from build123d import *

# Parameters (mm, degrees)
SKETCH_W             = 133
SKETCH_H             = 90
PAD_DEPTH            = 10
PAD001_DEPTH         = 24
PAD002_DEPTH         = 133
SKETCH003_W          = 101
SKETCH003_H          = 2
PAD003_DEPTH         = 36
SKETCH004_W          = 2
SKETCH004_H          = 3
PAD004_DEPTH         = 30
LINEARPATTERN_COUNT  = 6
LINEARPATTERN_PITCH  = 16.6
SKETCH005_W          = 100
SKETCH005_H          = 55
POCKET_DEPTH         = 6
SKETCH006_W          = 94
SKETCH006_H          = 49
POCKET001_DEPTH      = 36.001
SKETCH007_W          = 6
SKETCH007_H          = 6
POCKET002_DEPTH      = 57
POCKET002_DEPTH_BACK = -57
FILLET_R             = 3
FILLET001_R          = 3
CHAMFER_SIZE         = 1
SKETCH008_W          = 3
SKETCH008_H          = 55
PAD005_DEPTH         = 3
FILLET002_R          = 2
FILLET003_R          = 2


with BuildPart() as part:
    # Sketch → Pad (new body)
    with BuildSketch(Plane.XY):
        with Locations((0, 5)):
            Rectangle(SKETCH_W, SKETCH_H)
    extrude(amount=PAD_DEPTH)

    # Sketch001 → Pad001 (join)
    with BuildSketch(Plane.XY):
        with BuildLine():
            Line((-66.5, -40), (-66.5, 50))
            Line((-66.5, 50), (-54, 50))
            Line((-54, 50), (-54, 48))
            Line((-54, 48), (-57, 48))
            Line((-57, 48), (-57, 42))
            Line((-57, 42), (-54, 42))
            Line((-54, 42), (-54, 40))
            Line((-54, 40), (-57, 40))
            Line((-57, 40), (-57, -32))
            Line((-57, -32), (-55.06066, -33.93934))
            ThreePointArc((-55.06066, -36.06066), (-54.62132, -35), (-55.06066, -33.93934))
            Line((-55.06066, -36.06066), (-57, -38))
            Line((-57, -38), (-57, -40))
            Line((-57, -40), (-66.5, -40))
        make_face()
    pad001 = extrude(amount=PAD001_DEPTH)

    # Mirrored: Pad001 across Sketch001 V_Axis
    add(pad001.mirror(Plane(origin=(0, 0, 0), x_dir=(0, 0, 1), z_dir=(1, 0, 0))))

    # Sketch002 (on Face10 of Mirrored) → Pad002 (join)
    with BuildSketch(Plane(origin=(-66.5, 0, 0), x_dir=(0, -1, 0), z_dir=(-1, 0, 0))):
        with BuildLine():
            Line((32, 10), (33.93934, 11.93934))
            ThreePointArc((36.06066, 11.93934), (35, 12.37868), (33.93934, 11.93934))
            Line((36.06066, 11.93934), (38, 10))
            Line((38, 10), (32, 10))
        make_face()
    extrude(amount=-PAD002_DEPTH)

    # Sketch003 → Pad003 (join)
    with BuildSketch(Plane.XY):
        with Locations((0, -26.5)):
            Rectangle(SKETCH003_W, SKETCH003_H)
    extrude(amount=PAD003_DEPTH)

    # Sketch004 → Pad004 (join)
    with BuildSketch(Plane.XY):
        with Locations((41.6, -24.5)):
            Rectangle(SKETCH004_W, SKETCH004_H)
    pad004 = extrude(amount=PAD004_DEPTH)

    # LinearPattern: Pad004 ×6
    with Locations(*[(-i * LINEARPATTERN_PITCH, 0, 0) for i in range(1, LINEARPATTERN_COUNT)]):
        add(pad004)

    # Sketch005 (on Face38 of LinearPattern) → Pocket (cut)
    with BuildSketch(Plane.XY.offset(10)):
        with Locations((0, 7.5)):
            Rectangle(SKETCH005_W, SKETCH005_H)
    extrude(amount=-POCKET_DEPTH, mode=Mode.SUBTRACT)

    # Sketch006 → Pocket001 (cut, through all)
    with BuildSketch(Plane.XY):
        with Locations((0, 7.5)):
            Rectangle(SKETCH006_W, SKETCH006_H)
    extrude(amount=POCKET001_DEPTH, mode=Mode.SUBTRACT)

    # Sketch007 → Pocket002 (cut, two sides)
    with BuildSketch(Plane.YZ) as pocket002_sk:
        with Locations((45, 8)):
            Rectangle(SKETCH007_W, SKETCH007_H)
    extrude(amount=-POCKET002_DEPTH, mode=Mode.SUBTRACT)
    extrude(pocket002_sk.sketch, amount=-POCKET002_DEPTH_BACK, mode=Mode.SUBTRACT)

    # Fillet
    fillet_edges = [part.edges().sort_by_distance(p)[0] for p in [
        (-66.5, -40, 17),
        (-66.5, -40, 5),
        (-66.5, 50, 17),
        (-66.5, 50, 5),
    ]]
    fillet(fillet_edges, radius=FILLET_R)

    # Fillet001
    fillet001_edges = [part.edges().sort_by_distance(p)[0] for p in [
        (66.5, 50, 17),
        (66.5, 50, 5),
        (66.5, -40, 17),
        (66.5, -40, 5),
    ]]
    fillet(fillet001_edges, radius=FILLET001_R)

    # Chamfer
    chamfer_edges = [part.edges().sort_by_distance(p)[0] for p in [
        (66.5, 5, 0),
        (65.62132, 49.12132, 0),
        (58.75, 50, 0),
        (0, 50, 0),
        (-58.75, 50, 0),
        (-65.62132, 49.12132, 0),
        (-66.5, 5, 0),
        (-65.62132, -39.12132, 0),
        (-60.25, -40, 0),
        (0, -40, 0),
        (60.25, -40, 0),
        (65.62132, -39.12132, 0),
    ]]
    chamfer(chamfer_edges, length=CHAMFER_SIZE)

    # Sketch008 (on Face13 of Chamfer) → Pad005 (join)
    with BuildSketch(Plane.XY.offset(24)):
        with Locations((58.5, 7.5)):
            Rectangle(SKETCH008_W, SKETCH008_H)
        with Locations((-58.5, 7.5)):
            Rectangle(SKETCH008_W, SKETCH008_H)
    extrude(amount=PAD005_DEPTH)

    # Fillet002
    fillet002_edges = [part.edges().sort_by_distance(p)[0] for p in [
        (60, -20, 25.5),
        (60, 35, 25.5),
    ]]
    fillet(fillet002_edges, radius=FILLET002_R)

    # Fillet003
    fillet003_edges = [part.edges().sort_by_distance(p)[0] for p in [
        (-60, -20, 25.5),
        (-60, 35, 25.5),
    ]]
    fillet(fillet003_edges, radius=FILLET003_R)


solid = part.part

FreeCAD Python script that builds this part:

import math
import FreeCAD as App
import Part
import Sketcher

V = App.Vector


def edges_at(feature, points):
    """Names of the edges that pass closest to the given points."""
    edges = feature.Shape.Edges
    near = lambda p: min(range(len(edges)), key=lambda i: edges[i].distToShape(Part.Vertex(*p))[0])
    return sorted({f"Edge{near(p) + 1}" for p in points})


def add_polygon(sketch, points):
    """Adds a closed chain of lines whose ends are joined by coincident constraints."""
    first, n = sketch.GeometryCount, len(points)
    for a, b in zip(points, points[1:] + points[:1]):
        sketch.addGeometry(Part.LineSegment(App.Vector(*a, 0), App.Vector(*b, 0)), False)
    for i in range(n):
        sketch.addConstraint(Sketcher.Constraint("Coincident", first + i, 2, first + (i + 1) % n, 1))

doc = App.newDocument("Part")
body = doc.addObject("PartDesign::Body", "Body")

# Sketch on XY plane
sketch1 = body.newObject("Sketcher::SketchObject", "Sketch")
sketch1.AttachmentSupport = (doc.getObject("XY_Plane"), [""])
sketch1.MapMode = "FlatFace"
add_polygon(sketch1, [(-66.5, 50), (-66.5, -40), (66.5, -40), (66.5, 50)])  # lines 0-3
sketch1.addConstraint([
    Sketcher.Constraint("Vertical", 0),
    Sketcher.Constraint("Horizontal", 1),
    Sketcher.Constraint("Vertical", 2),
    Sketcher.Constraint("Horizontal", 3),
    Sketcher.Constraint("DistanceX", 1, 1, 1, 2, 133.0),
    Sketcher.Constraint("DistanceY", 0, 2, 0, 1, 90.0),
    Sketcher.Constraint("DistanceY", 0, 2, -1, 1, 40.0),
    Sketcher.Constraint("DistanceX", 0, 2, -1, 1, 66.5),
])
pad1 = body.newObject("PartDesign::Pad", "Pad")
pad1.Profile = sketch1
pad1.Length = 10

# Sketch on XY plane
sketch2 = body.newObject("Sketcher::SketchObject", "Sketch001")
sketch2.AttachmentSupport = (doc.getObject("XY_Plane"), [""])
sketch2.MapMode = "FlatFace"
sketch2.addGeometry([
    Part.LineSegment(V(-66.5, 50, 0), V(-66.5, -40, 0)),  # 0
    Part.LineSegment(V(-66.5, -40, 0), V(-57, -40, 0)),  # 1
    Part.LineSegment(V(-57, -40, 0), V(-57, -38, 0)),  # 2
    Part.LineSegment(V(-57, -38, 0), V(-55.06066, -36.06066, 0)),  # 3
    Part.ArcOfCircle(Part.Circle(V(-56.121319, -35, 0), V(0, 0, 1), 1.499999), math.radians(-45.000022), math.radians(45.000022)),  # 4
    Part.LineSegment(V(-55.06066, -33.93934, 0), V(-57, -32, 0)),  # 5
    Part.LineSegment(V(-57, -32, 0), V(-57, 40, 0)),  # 6
    Part.LineSegment(V(-57, 40, 0), V(-54, 40, 0)),  # 7
    Part.LineSegment(V(-54, 40, 0), V(-54, 42, 0)),  # 8
    Part.LineSegment(V(-54, 42, 0), V(-57, 42, 0)),  # 9
    Part.LineSegment(V(-57, 42, 0), V(-57, 48, 0)),  # 10
    Part.LineSegment(V(-57, 48, 0), V(-54, 48, 0)),  # 11
    Part.LineSegment(V(-54, 48, 0), V(-54, 50, 0)),  # 12
    Part.LineSegment(V(-54, 50, 0), V(-66.5, 50, 0)),  # 13
], False)
sketch2.addConstraint([
    Sketcher.Constraint("Coincident", 0, 2, 1, 1),
    Sketcher.Constraint("Coincident", 1, 2, 2, 1),
    Sketcher.Constraint("Coincident", 2, 2, 3, 1),
    Sketcher.Constraint("Tangent", 3, 2, 4, 1),
    Sketcher.Constraint("Tangent", 4, 2, 5, 1),
    Sketcher.Constraint("Coincident", 5, 2, 6, 1),
    Sketcher.Constraint("Coincident", 6, 2, 7, 1),
    Sketcher.Constraint("Coincident", 7, 2, 8, 1),
    Sketcher.Constraint("Coincident", 8, 2, 9, 1),
    Sketcher.Constraint("Coincident", 9, 2, 10, 1),
    Sketcher.Constraint("Coincident", 10, 2, 11, 1),
    Sketcher.Constraint("Coincident", 11, 2, 12, 1),
    Sketcher.Constraint("Coincident", 12, 2, 13, 1),
    Sketcher.Constraint("Coincident", 13, 2, 0, 1),
    Sketcher.Constraint("Vertical", 0),
    Sketcher.Constraint("Horizontal", 1),
    Sketcher.Constraint("Vertical", 2),
    Sketcher.Constraint("Vertical", 6),
    Sketcher.Constraint("Horizontal", 7),
    Sketcher.Constraint("Vertical", 8),
    Sketcher.Constraint("Horizontal", 9),
    Sketcher.Constraint("Vertical", 10),
    Sketcher.Constraint("Horizontal", 11),
    Sketcher.Constraint("Vertical", 12),
    Sketcher.Constraint("Horizontal", 13),
    Sketcher.Constraint("Symmetric", 1, 2, 6, 2, -1),
    Sketcher.Constraint("Perpendicular", 3, 5),
    Sketcher.Constraint("Vertical", 3, 2, 4, 2),
    Sketcher.Constraint("Vertical", 6, 2, 9, 2),
    Sketcher.Constraint("Vertical", 8, 2, 11, 2),
    Sketcher.Constraint("Equal", 2, 8),
    Sketcher.Constraint("Equal", 8, 12),
    Sketcher.Constraint("Radius", 4, 1.499999),
    Sketcher.Constraint("DistanceX", 7, 1, 7, 2, 3.0),
    Sketcher.Constraint("DistanceY", 0, 2, 0, 1, 90.0),
    Sketcher.Constraint("DistanceY", 2, 1, 2, 2, 2.0),
    Sketcher.Constraint("DistanceY", 6, 1, 6, 2, 72.0),
    Sketcher.Constraint("DistanceY", 10, 1, 10, 2, 6.0),
    Sketcher.Constraint("DistanceX", 1, 1, 1, 2, 9.5),
    Sketcher.Constraint("DistanceX", 1, 2, -1, 1, 57.0),
])
pad2 = body.newObject("PartDesign::Pad", "Pad001")
pad2.Profile = sketch2
pad2.Length = 24
doc.recompute()

mirrored = body.newObject("PartDesign::Mirrored", "Mirrored")
mirrored.Originals = [pad2]
mirrored.MirrorPlane = (doc.getObject("YZ_Plane"), [""])
body.Tip = mirrored

# Sketch on YZ plane
sketch3 = body.newObject("Sketcher::SketchObject", "Sketch002")
sketch3.AttachmentSupport = (doc.getObject("YZ_Plane"), [""])
sketch3.MapMode = "FlatFace"
sketch3.AttachmentOffset = App.Placement(V(0, 0, -66.5), App.Rotation())
sketch3.addGeometry([
    Part.LineSegment(V(-33.93934, 11.93934, 0), V(-32, 10, 0)),
    Part.LineSegment(V(-32, 10, 0), V(-38, 10, 0)),
    Part.LineSegment(V(-38, 10, 0), V(-36.06066, 11.93934, 0)),
    Part.ArcOfCircle(Part.Circle(V(-35, 10.878681, 0), V(0, 0, 1), 1.499999), math.radians(44.999978), math.radians(135.000022)),
], False)
sketch3.addConstraint([
    Sketcher.Constraint("Coincident", 0, 2, 1, 1),
    Sketcher.Constraint("Coincident", 1, 2, 2, 1),
    Sketcher.Constraint("Tangent", 2, 2, 3, 2),
    Sketcher.Constraint("Tangent", 3, 1, 0, 1),
    Sketcher.Constraint("Horizontal", 1),
    Sketcher.Constraint("Perpendicular", 0, 2),
    Sketcher.Constraint("Horizontal", 2, 2, 3, 1),
    Sketcher.Constraint("Radius", 3, 1.499999),
    Sketcher.Constraint("DistanceX", 1, 2, 1, 1, 6.0),
    Sketcher.Constraint("DistanceX", 3, 3, -1, 1, 35.0),
    Sketcher.Constraint("DistanceY", -1, 1, 0, 2, 10.0),
])
pad3 = body.newObject("PartDesign::Pad", "Pad002")
pad3.Profile = sketch3
pad3.Length = 133

# Sketch on XY plane
sketch4 = body.newObject("Sketcher::SketchObject", "Sketch003")
sketch4.AttachmentSupport = (doc.getObject("XY_Plane"), [""])
sketch4.MapMode = "FlatFace"
add_polygon(sketch4, [(-50.5, -25.5), (-50.5, -27.5), (50.5, -27.5), (50.5, -25.5)])  # lines 0-3
sketch4.addConstraint([
    Sketcher.Constraint("Vertical", 0),
    Sketcher.Constraint("Horizontal", 1),
    Sketcher.Constraint("Vertical", 2),
    Sketcher.Constraint("Horizontal", 3),
    Sketcher.Constraint("DistanceX", 1, 1, 1, 2, 101.0),
    Sketcher.Constraint("DistanceY", 0, 2, 0, 1, 2.0),
    Sketcher.Constraint("DistanceX", 0, 2, -1, 1, 50.5),
    Sketcher.Constraint("DistanceY", 0, 2, -1, 1, 27.5),
])
pad4 = body.newObject("PartDesign::Pad", "Pad003")
pad4.Profile = sketch4
pad4.Length = 36

# Sketch on XY plane
sketch5 = body.newObject("Sketcher::SketchObject", "Sketch004")
sketch5.AttachmentSupport = (doc.getObject("XY_Plane"), [""])
sketch5.MapMode = "FlatFace"
add_polygon(sketch5, [(40.6, -23), (40.6, -26), (42.6, -26), (42.6, -23)])  # lines 0-3
sketch5.addConstraint([
    Sketcher.Constraint("Vertical", 0),
    Sketcher.Constraint("Horizontal", 1),
    Sketcher.Constraint("Vertical", 2),
    Sketcher.Constraint("Horizontal", 3),
    Sketcher.Constraint("DistanceX", 1, 1, 1, 2, 2.0),
    Sketcher.Constraint("DistanceY", 0, 2, 0, 1, 3.0),
    Sketcher.Constraint("DistanceY", 0, 2, -1, 1, 26.0),
    Sketcher.Constraint("DistanceX", -1, 1, 0, 2, 40.6),
])
pad5 = body.newObject("PartDesign::Pad", "Pad004")
pad5.Profile = sketch5
pad5.Length = 30
doc.recompute()

linearpattern = body.newObject("PartDesign::LinearPattern", "LinearPattern")
linearpattern.Originals = [pad5]
linearpattern.Direction = (doc.getObject("X_Axis"), [""])
linearpattern.Mode = "offset"
linearpattern.Offset = 16.6
linearpattern.Occurrences = 6
linearpattern.Reversed = True
body.Tip = linearpattern

# Sketch on XY plane
sketch6 = body.newObject("Sketcher::SketchObject", "Sketch005")
sketch6.AttachmentSupport = (doc.getObject("XY_Plane"), [""])
sketch6.MapMode = "FlatFace"
sketch6.AttachmentOffset = App.Placement(V(0, 0, 10), App.Rotation())
add_polygon(sketch6, [(-50, 35), (-50, -20), (50, -20), (50, 35)])  # lines 0-3
sketch6.addConstraint([
    Sketcher.Constraint("Vertical", 0),
    Sketcher.Constraint("Horizontal", 1),
    Sketcher.Constraint("Vertical", 2),
    Sketcher.Constraint("Horizontal", 3),
    Sketcher.Constraint("DistanceX", 1, 1, 1, 2, 100.0),
    Sketcher.Constraint("DistanceY", 0, 2, 0, 1, 55.0),
    Sketcher.Constraint("DistanceX", 0, 2, -1, 1, 50.0),
    Sketcher.Constraint("DistanceY", 0, 2, -1, 1, 20.0),
])
pocket1 = body.newObject("PartDesign::Pocket", "Pocket")
pocket1.Profile = sketch6
pocket1.Length = 6

# Sketch on XY plane
sketch7 = body.newObject("Sketcher::SketchObject", "Sketch006")
sketch7.AttachmentSupport = (doc.getObject("XY_Plane"), [""])
sketch7.MapMode = "FlatFace"
add_polygon(sketch7, [(-47, 32), (-47, -17), (47, -17), (47, 32)])  # lines 0-3
sketch7.addConstraint([
    Sketcher.Constraint("Vertical", 0),
    Sketcher.Constraint("Horizontal", 1),
    Sketcher.Constraint("Vertical", 2),
    Sketcher.Constraint("Horizontal", 3),
    Sketcher.Constraint("DistanceX", 1, 1, 1, 2, 94.0),
    Sketcher.Constraint("DistanceY", 0, 2, 0, 1, 49.0),
    Sketcher.Constraint("DistanceX", 0, 2, -1, 1, 47.0),
    Sketcher.Constraint("DistanceY", 0, 2, -1, 1, 17.0),
])
pocket2 = body.newObject("PartDesign::Pocket", "Pocket001")
pocket2.Profile = sketch7
pocket2.Type = "ThroughAll"
pocket2.Reversed = True

# Sketch on YZ plane
sketch8 = body.newObject("Sketcher::SketchObject", "Sketch007")
sketch8.AttachmentSupport = (doc.getObject("YZ_Plane"), [""])
sketch8.MapMode = "FlatFace"
add_polygon(sketch8, [(42, 11), (42, 5), (48, 5), (48, 11)])  # lines 0-3
sketch8.addConstraint([
    Sketcher.Constraint("Vertical", 0),
    Sketcher.Constraint("Horizontal", 1),
    Sketcher.Constraint("Vertical", 2),
    Sketcher.Constraint("Horizontal", 3),
    Sketcher.Constraint("Equal", 3, 0),
    Sketcher.Constraint("DistanceX", 1, 1, 1, 2, 6.0),
    Sketcher.Constraint("DistanceX", -1, 1, 0, 2, 42.0),
    Sketcher.Constraint("DistanceY", -1, 1, 0, 2, 5.0),
])
pocket3 = body.newObject("PartDesign::Pocket", "Pocket002")
pocket3.Profile = sketch8
pocket3.Type = "TwoLengths"
pocket3.Length = 57
pocket3.Length2 = 57
doc.recompute()

fillet = body.newObject("PartDesign::Fillet", "Fillet")
fillet.Base = (pocket3, edges_at(pocket3, [
    (-66.5, -40, 12),
    (-66.5, -40, 12),
    (-66.5, 50, 12),
    (-66.5, 50, 12),
]))
fillet.Radius = 3
doc.recompute()

fillet2 = body.newObject("PartDesign::Fillet", "Fillet001")
fillet2.Base = (fillet, edges_at(fillet, [
    (66.5, 50, 12),
    (66.5, 50, 12),
    (66.5, -40, 12),
    (66.5, -40, 12),
]))
fillet2.Radius = 3
doc.recompute()

chamfer = body.newObject("PartDesign::Chamfer", "Chamfer")
chamfer.Base = (fillet2, edges_at(fillet2, [
    (66.5, 5, 0),
    (65.621, 49.121, 0),
    (0, 50, 0),
    (0, 50, 0),
    (0, 50, 0),
    (-65.621, 49.121, 0),
    (-66.5, 5, 0),
    (-65.621, -39.121, 0),
    (0, -40, 0),
    (0, -40, 0),
    (0, -40, 0),
    (65.621, -39.121, 0),
]))
chamfer.Size = 1

# Sketch on XY plane
sketch9 = body.newObject("Sketcher::SketchObject", "Sketch008")
sketch9.AttachmentSupport = (doc.getObject("XY_Plane"), [""])
sketch9.MapMode = "FlatFace"
sketch9.AttachmentOffset = App.Placement(V(0, 0, 24), App.Rotation())
add_polygon(sketch9, [(57, 35), (57, -20), (60, -20), (60, 35)])  # lines 0-3
add_polygon(sketch9, [(-60, 35), (-60, -20), (-57, -20), (-57, 35)])  # lines 4-7
sketch9.addConstraint([
    Sketcher.Constraint("Vertical", 0),
    Sketcher.Constraint("Horizontal", 1),
    Sketcher.Constraint("Vertical", 2),
    Sketcher.Constraint("Horizontal", 3),
    Sketcher.Constraint("Vertical", 4),
    Sketcher.Constraint("Horizontal", 5),
    Sketcher.Constraint("Vertical", 6),
    Sketcher.Constraint("Horizontal", 7),
    Sketcher.Constraint("Symmetric", 1, 2, 4, 2, -2),
    Sketcher.Constraint("Symmetric", 3, 2, 6, 2, -2),
    Sketcher.Constraint("DistanceX", 1, 1, 1, 2, 3.0),
    Sketcher.Constraint("DistanceY", 0, 2, 0, 1, 55.0),
    Sketcher.Constraint("DistanceX", -1, 1, 0, 2, 57.0),
    Sketcher.Constraint("DistanceY", 0, 2, -1, 1, 20.0),
])
pad6 = body.newObject("PartDesign::Pad", "Pad005")
pad6.Profile = sketch9
pad6.Length = 3
doc.recompute()

fillet3 = body.newObject("PartDesign::Fillet", "Fillet002")
fillet3.Base = (pad6, edges_at(pad6, [(60, -20, 25.5), (60, 35, 25.5)]))
fillet3.Radius = 2
doc.recompute()

fillet4 = body.newObject("PartDesign::Fillet", "Fillet003")
fillet4.Base = (fillet3, edges_at(fillet3, [(-60, -20, 25.5), (-60, 35, 25.5)]))
fillet4.Radius = 2

doc.recompute()
